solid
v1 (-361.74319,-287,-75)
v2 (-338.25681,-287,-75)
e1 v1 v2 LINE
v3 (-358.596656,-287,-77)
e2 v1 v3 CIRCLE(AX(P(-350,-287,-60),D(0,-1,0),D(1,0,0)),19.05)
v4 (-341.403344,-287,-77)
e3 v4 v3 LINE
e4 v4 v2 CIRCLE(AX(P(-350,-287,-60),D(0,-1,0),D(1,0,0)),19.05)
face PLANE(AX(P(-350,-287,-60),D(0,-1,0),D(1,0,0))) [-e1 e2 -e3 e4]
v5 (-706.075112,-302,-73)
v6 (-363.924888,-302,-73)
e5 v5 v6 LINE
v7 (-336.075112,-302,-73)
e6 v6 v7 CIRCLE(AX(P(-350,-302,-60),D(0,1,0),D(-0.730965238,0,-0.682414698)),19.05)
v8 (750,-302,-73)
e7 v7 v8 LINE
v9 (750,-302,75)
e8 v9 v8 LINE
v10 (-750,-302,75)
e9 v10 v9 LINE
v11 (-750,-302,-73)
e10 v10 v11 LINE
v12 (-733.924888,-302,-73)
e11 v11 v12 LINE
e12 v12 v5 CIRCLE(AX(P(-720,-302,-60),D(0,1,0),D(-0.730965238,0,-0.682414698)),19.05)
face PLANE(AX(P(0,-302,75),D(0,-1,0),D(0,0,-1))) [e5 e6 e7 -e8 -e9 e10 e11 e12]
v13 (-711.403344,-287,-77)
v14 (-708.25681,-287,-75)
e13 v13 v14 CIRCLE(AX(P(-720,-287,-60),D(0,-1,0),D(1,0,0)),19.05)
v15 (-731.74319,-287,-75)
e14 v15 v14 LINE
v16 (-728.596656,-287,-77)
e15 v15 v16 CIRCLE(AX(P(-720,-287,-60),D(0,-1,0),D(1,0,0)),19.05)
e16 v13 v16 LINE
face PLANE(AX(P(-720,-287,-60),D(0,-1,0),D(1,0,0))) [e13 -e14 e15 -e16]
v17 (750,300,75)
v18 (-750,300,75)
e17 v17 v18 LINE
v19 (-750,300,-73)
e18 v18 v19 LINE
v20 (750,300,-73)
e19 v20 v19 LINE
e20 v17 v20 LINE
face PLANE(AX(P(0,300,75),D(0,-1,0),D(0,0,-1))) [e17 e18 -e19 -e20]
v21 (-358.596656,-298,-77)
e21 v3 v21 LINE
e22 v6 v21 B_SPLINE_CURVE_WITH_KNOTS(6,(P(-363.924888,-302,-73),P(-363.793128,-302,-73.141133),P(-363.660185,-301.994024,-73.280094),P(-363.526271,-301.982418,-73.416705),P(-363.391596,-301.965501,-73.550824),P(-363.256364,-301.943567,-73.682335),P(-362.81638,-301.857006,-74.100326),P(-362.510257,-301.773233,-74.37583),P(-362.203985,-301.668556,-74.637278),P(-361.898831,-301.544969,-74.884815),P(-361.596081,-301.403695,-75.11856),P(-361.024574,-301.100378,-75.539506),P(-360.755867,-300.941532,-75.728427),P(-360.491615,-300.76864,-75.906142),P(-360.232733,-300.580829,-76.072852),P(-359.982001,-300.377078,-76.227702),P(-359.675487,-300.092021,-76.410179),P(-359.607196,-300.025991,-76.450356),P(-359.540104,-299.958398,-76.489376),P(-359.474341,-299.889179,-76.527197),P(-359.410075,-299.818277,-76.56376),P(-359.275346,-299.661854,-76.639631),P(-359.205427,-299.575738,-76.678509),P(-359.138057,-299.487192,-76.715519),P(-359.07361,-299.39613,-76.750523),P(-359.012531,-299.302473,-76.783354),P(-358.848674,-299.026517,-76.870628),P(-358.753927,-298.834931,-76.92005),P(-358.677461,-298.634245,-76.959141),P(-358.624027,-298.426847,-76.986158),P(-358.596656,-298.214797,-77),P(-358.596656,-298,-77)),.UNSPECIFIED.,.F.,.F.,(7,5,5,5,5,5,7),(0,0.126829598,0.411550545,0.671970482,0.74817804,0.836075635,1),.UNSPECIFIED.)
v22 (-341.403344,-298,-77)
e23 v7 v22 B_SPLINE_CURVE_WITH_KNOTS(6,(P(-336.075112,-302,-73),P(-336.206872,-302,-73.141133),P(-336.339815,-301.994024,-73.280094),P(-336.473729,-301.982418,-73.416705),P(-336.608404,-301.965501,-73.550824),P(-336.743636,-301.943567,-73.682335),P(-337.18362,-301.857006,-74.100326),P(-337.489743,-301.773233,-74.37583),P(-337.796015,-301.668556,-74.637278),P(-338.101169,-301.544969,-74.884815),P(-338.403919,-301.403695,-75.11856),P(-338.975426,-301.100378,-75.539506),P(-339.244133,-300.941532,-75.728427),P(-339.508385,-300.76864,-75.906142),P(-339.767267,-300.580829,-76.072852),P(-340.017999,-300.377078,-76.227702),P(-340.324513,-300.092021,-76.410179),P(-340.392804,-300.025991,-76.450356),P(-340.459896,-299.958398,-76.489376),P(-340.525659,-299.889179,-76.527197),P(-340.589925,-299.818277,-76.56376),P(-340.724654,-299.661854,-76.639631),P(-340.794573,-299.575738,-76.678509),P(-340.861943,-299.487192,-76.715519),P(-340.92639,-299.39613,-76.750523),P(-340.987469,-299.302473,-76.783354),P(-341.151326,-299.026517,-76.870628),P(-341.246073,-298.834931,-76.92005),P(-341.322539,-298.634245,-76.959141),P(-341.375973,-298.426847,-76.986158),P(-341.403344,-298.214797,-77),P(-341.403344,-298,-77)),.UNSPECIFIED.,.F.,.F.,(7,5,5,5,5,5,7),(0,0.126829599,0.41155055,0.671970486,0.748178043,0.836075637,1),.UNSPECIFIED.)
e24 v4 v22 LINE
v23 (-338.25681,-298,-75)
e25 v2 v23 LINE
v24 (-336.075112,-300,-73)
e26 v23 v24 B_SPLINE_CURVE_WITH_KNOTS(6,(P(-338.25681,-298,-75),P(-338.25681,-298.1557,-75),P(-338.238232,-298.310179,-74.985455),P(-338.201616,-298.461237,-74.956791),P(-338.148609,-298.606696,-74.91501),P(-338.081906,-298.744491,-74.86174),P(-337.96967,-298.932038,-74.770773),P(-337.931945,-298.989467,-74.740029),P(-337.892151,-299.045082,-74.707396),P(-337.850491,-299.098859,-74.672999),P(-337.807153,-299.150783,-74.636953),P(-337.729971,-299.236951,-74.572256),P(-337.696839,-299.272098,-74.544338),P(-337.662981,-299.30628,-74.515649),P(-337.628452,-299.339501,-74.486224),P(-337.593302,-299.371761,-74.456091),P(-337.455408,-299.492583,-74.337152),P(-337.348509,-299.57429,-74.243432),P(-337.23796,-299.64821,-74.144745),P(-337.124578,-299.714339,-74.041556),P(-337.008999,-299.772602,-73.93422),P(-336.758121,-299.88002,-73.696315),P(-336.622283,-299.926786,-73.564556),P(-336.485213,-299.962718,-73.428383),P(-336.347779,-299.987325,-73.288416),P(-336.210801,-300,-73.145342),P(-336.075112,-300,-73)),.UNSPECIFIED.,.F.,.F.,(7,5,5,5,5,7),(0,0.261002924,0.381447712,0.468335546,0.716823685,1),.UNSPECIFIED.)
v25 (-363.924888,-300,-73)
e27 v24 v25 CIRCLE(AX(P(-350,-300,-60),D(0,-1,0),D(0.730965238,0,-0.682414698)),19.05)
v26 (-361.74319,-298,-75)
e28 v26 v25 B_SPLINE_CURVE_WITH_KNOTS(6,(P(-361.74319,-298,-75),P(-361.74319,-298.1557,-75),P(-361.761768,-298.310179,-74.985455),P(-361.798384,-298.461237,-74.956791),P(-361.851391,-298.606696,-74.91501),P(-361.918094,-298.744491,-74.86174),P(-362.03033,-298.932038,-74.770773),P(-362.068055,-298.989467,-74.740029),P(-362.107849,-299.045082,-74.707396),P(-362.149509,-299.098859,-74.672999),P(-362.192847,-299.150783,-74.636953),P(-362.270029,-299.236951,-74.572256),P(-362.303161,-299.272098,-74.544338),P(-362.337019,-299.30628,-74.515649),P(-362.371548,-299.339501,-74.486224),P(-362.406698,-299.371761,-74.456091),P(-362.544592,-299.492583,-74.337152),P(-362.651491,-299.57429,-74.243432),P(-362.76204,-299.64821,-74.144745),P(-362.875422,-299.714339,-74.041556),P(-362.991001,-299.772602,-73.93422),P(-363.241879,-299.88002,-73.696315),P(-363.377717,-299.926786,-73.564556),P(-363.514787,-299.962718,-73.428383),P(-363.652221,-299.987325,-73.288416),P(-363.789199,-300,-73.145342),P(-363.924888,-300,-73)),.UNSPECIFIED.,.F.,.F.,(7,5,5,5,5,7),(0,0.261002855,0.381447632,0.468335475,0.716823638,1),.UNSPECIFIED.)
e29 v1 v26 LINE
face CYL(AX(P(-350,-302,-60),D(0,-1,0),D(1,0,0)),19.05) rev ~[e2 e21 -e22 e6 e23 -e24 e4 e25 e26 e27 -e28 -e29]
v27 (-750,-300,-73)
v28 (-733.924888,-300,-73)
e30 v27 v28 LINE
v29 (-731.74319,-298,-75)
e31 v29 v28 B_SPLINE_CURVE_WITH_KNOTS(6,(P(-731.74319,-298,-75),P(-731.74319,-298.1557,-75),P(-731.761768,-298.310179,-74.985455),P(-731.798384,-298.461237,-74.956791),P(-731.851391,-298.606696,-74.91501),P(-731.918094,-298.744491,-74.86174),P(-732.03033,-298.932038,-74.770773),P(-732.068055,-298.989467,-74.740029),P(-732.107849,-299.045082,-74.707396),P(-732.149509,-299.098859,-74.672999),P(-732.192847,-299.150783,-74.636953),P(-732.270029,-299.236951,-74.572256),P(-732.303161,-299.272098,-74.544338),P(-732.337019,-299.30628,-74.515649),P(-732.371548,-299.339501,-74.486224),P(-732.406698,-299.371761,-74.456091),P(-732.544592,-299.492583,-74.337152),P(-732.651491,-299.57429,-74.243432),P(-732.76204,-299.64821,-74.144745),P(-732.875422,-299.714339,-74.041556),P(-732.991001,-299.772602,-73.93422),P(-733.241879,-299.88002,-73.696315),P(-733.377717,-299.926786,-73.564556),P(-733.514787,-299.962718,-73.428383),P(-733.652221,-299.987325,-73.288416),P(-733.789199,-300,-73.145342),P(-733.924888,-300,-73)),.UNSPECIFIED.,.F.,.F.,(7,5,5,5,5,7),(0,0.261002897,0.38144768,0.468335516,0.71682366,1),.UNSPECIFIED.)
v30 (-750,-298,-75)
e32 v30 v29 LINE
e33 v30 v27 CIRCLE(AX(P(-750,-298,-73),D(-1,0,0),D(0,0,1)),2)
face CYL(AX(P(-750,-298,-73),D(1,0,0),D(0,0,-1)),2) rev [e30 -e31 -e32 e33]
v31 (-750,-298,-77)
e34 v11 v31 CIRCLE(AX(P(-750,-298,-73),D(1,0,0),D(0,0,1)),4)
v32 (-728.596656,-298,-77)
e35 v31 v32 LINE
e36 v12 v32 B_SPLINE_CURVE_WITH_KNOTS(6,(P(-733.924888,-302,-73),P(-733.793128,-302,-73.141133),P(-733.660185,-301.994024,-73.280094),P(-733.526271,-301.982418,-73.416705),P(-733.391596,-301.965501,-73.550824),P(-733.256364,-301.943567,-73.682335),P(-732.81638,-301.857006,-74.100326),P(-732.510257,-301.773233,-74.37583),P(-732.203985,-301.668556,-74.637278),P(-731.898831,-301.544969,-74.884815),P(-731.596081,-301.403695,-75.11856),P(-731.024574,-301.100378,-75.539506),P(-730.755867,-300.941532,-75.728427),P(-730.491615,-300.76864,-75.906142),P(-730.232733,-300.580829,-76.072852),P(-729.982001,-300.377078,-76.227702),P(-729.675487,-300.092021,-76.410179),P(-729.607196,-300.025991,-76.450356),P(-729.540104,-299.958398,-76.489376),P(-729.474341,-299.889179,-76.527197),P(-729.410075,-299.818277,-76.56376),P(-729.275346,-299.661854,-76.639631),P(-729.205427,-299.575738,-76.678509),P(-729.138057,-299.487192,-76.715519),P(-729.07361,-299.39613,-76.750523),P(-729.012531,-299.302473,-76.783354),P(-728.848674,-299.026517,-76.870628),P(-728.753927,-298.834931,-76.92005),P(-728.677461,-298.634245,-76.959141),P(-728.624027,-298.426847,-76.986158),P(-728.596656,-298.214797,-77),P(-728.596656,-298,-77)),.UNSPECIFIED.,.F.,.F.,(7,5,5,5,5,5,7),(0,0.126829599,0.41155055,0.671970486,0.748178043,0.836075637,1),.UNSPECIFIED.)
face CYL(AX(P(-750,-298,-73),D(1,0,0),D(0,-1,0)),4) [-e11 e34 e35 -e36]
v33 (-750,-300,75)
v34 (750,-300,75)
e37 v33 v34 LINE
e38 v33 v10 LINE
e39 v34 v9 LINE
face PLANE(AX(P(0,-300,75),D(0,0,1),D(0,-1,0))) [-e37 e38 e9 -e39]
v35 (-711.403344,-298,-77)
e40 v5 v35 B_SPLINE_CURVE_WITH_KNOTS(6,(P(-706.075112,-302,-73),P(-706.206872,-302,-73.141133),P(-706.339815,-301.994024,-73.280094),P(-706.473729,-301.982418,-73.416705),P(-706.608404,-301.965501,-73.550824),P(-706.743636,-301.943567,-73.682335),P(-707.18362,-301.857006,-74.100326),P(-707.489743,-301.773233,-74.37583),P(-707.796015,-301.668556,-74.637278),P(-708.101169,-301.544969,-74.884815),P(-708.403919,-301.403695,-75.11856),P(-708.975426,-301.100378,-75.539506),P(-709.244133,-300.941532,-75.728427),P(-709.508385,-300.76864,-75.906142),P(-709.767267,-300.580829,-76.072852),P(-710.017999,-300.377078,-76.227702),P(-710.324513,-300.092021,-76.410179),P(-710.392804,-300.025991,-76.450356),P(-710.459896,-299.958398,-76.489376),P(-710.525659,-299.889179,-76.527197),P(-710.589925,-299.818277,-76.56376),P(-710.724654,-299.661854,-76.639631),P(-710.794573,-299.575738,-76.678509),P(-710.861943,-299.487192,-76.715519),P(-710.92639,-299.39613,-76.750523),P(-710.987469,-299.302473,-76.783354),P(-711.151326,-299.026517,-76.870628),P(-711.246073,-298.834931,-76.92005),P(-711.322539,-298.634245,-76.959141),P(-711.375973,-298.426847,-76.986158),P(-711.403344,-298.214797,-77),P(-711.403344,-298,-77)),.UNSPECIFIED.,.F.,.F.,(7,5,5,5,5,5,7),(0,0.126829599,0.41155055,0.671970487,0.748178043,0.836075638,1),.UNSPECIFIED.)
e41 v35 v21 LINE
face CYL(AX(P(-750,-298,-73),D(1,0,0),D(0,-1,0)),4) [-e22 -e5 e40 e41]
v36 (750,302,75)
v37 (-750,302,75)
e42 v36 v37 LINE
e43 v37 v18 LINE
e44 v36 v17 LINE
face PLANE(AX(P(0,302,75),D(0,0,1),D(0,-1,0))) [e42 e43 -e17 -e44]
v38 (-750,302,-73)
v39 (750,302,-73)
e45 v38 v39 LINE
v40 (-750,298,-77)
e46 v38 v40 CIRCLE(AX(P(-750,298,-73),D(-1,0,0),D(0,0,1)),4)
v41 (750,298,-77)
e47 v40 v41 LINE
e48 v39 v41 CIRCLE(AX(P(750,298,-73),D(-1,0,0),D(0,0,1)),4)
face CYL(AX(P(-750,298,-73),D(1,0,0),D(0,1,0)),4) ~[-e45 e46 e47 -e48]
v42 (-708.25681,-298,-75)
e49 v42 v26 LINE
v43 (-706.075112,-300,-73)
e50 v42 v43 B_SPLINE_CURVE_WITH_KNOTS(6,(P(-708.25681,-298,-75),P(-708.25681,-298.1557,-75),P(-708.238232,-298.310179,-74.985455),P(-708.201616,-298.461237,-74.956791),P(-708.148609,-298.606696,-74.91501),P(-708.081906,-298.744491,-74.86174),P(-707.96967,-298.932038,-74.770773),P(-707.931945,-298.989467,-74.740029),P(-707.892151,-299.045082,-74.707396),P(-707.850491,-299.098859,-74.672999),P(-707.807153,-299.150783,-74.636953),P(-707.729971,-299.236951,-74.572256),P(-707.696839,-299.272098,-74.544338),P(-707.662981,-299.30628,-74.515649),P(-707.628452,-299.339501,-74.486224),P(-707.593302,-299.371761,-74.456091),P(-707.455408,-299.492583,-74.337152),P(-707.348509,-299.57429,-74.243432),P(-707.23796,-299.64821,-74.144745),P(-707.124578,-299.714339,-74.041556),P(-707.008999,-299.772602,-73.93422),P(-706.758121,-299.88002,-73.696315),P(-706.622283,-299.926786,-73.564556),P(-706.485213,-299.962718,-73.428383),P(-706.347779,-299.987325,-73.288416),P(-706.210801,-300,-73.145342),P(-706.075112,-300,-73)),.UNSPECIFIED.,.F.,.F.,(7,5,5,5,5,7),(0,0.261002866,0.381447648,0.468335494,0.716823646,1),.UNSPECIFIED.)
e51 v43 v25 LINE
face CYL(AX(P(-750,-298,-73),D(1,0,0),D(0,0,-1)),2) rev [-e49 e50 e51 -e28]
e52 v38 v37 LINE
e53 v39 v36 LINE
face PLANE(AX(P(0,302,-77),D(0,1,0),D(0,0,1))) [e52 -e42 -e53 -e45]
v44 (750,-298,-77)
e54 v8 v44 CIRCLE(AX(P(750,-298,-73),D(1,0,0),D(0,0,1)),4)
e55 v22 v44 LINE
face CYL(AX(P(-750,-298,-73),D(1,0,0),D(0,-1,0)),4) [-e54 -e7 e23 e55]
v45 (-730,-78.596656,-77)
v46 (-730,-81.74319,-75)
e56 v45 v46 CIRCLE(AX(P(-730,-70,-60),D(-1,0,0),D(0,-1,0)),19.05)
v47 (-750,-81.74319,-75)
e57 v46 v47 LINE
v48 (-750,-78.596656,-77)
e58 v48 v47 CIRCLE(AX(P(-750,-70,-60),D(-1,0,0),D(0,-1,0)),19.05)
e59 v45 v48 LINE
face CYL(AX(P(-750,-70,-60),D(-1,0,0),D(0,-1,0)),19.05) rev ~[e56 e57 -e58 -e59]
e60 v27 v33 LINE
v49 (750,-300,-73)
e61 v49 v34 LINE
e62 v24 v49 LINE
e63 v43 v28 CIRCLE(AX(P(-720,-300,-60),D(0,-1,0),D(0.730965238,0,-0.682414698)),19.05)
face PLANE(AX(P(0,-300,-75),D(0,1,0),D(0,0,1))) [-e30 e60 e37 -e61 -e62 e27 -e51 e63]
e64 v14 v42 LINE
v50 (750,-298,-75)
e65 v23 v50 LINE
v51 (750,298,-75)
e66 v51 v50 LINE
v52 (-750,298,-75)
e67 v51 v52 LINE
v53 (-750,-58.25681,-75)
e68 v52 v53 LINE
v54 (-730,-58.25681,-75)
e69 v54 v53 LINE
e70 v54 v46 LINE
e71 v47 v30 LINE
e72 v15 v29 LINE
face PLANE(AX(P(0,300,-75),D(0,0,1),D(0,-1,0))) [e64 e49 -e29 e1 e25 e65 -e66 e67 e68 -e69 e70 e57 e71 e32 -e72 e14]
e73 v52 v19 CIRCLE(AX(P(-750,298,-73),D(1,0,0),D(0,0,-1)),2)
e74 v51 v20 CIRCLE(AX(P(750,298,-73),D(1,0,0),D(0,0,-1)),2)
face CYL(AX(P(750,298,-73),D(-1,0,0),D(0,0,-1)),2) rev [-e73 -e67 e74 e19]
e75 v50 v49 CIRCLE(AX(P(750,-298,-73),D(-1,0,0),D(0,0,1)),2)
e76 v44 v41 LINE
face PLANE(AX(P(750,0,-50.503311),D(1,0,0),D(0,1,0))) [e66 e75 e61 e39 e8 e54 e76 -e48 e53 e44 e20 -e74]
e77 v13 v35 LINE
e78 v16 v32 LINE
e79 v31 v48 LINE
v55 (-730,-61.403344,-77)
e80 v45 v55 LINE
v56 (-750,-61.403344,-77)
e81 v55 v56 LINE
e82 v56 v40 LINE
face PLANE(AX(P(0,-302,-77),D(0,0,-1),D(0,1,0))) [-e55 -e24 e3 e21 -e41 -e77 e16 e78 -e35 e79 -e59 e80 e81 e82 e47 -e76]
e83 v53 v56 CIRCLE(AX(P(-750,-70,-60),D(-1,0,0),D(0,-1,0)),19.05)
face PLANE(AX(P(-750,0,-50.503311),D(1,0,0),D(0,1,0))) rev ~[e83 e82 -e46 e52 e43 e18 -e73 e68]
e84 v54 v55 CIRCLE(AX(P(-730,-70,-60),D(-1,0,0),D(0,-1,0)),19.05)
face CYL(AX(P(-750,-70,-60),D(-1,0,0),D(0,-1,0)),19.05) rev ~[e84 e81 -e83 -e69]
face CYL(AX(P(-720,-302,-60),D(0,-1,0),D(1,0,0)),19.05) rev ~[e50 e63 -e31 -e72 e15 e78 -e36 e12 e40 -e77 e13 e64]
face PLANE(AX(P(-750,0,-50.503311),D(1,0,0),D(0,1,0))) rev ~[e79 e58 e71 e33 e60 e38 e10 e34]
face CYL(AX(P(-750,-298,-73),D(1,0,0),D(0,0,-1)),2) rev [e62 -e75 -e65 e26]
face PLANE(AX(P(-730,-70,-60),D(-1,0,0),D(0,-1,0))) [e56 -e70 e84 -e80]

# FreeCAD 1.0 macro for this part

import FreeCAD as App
import Part
import Sketcher
from FreeCAD import Vector


def edges_at(feature, points):
    """Names of the edges that pass closest to the given points."""
    edges = feature.Shape.Edges
    near = lambda p: min(range(len(edges)), key=lambda i: edges[i].distToShape(Part.Vertex(*p))[0])
    return sorted({f"Edge{near(p) + 1}" for p in points})


def add_polygon(sketch, points):
    """Adds a closed chain of lines whose ends are joined by coincident constraints."""
    first, n = sketch.GeometryCount, len(points)
    for a, b in zip(points, points[1:] + points[:1]):
        sketch.addGeometry(Part.LineSegment(App.Vector(*a, 0), App.Vector(*b, 0)), False)
    for i in range(n):
        sketch.addConstraint(Sketcher.Constraint("Coincident", first + i, 2, first + (i + 1) % n, 1))

doc = App.newDocument("Part")
params = doc.addObject("Spreadsheet::Sheet", "Params")
for row, (alias, value) in enumerate([
    ("sketch1_width", "600 mm"),
    ("sketch1_width2", "2 mm"),
    ("sketch1_height", "150 mm"),
    ("sketch1_height2", "152 mm"),
    ("pad1_length", "1500 mm"),
    ("fillet_radius", "2 mm"),
    ("fillet2_radius", "4 mm"),
    ("sketch2_diameter", "38.1 mm"),
    ("pocket1_length", "15 mm"),
    ("sketch3_diameter", "38.1 mm"),
    ("pocket2_length", "20 mm"),
], start=1):
    params.set(f"A{row}", alias)
    params.set(f"B{row}", "=" + value)
    params.setAlias(f"B{row}", alias)

body = doc.addObject("PartDesign::Body", "Body")

sketch1 = body.newObject("Sketcher::SketchObject", "Sketch")
sketch1.AttachmentSupport = (doc.getObject("YZ_Plane"), [""])
sketch1.MapMode = "FlatFace"
add_polygon(sketch1, [(300, -75), (-300, -75), (-300, 75), (-302, 75), (-302, -77), (302, -77), (302, 75), (300, 75)])
sketch1.addConstraint([
    Sketcher.Constraint("Horizontal", 0),
    Sketcher.Constraint("Vertical", 1),
    Sketcher.Constraint("Horizontal", 2),
    Sketcher.Constraint("Vertical", 3),
    Sketcher.Constraint("Horizontal", 4),
    Sketcher.Constraint("Vertical", 5),
    Sketcher.Constraint("Horizontal", 6),
    Sketcher.Constraint("Vertical", 7),
    Sketcher.Constraint("Symmetric", 0, 2, 6, 2, -1, 1),
    Sketcher.Constraint("Symmetric", 2, 2, 5, 2, -2),
    Sketcher.Constraint("DistanceX", 0, 2, 0, 1, 600.0),
    Sketcher.Constraint("DistanceX", 2, 2, 2, 1, 2.0),
    Sketcher.Constraint("DistanceY", 1, 1, 1, 2, 150.0),
    Sketcher.Constraint("DistanceY", 3, 2, 3, 1, 152.0),
])
sketch1.setExpression("Constraints[18]", "Params.sketch1_width")
sketch1.setExpression("Constraints[19]", "Params.sketch1_width2")
sketch1.setExpression("Constraints[20]", "Params.sketch1_height")
sketch1.setExpression("Constraints[21]", "Params.sketch1_height2")
pad1 = body.newObject("PartDesign::Pad", "Pad")
pad1.Profile = sketch1
pad1.setExpression("Length", "Params.pad1_length")
pad1.Midplane = True
doc.recompute()

fillet = body.newObject("PartDesign::Fillet", "Fillet")
fillet.Base = (pad1, edges_at(pad1, [(0, 300, -75), (0, -300, -75)]))
fillet.setExpression("Radius", "Params.fillet_radius")
doc.recompute()

fillet2 = body.newObject("PartDesign::Fillet", "Fillet001")
fillet2.Base = (fillet, edges_at(fillet, [(0, -302, -77), (0, 302, -77)]))
fillet2.setExpression("Radius", "Params.fillet2_radius")

sketch2 = body.newObject("Sketcher::SketchObject", "Sketch001")
sketch2.AttachmentSupport = (doc.getObject("XZ_Plane"), [""])
sketch2.MapMode = "FlatFace"
sketch2.AttachmentOffset = App.Placement(Vector(0, 0, 302), App.Rotation())
sketch2.addGeometry([
    Part.Circle(Vector(-720, -60, 0), Vector(0, 0, 1), 19),
    Part.Circle(Vector(-350, -60, 0), Vector(0, 0, 1), 19),
], False)
sketch2.addConstraint([
    Sketcher.Constraint("Equal", 0, 1),
    Sketcher.Constraint("Horizontal", 0, 3, 1, 3),
    Sketcher.Constraint("Diameter", 0, 38.1),
    Sketcher.Constraint("DistanceX", 0, 3, -1, 1, 720.0),
    Sketcher.Constraint("DistanceY", 0, 3, -1, 1, 60.0),
    Sketcher.Constraint("DistanceX", 1, 3, -1, 1, 350.0),
])
sketch2.setExpression("Constraints[2]", "Params.sketch2_diameter")
pocket1 = body.newObject("PartDesign::Pocket", "Pocket")
pocket1.Profile = sketch2
pocket1.setExpression("Length", "Params.pocket1_length")

sketch3 = body.newObject("Sketcher::SketchObject", "Sketch002")
sketch3.AttachmentSupport = (doc.getObject("YZ_Plane"), [""])
sketch3.MapMode = "FlatFace"
sketch3.AttachmentOffset = App.Placement(Vector(0, 0, -750), App.Rotation())
sketch3.addGeometry(Part.Circle(Vector(-70, -60, 0), Vector(0, 0, 1), 19), False)
sketch3.addConstraint([
    Sketcher.Constraint("Diameter", 0, 38.1),
    Sketcher.Constraint("DistanceX", 0, 3, -1, 1, 70.0),
    Sketcher.Constraint("DistanceY", 0, 3, -1, 1, 60.0),
])
sketch3.setExpression("Constraints[0]", "Params.sketch3_diameter")
pocket2 = body.newObject("PartDesign::Pocket", "Pocket001")
pocket2.Profile = sketch3
pocket2.setExpression("Length", "Params.pocket2_length")
pocket2.Reversed = True

doc.recompute()
